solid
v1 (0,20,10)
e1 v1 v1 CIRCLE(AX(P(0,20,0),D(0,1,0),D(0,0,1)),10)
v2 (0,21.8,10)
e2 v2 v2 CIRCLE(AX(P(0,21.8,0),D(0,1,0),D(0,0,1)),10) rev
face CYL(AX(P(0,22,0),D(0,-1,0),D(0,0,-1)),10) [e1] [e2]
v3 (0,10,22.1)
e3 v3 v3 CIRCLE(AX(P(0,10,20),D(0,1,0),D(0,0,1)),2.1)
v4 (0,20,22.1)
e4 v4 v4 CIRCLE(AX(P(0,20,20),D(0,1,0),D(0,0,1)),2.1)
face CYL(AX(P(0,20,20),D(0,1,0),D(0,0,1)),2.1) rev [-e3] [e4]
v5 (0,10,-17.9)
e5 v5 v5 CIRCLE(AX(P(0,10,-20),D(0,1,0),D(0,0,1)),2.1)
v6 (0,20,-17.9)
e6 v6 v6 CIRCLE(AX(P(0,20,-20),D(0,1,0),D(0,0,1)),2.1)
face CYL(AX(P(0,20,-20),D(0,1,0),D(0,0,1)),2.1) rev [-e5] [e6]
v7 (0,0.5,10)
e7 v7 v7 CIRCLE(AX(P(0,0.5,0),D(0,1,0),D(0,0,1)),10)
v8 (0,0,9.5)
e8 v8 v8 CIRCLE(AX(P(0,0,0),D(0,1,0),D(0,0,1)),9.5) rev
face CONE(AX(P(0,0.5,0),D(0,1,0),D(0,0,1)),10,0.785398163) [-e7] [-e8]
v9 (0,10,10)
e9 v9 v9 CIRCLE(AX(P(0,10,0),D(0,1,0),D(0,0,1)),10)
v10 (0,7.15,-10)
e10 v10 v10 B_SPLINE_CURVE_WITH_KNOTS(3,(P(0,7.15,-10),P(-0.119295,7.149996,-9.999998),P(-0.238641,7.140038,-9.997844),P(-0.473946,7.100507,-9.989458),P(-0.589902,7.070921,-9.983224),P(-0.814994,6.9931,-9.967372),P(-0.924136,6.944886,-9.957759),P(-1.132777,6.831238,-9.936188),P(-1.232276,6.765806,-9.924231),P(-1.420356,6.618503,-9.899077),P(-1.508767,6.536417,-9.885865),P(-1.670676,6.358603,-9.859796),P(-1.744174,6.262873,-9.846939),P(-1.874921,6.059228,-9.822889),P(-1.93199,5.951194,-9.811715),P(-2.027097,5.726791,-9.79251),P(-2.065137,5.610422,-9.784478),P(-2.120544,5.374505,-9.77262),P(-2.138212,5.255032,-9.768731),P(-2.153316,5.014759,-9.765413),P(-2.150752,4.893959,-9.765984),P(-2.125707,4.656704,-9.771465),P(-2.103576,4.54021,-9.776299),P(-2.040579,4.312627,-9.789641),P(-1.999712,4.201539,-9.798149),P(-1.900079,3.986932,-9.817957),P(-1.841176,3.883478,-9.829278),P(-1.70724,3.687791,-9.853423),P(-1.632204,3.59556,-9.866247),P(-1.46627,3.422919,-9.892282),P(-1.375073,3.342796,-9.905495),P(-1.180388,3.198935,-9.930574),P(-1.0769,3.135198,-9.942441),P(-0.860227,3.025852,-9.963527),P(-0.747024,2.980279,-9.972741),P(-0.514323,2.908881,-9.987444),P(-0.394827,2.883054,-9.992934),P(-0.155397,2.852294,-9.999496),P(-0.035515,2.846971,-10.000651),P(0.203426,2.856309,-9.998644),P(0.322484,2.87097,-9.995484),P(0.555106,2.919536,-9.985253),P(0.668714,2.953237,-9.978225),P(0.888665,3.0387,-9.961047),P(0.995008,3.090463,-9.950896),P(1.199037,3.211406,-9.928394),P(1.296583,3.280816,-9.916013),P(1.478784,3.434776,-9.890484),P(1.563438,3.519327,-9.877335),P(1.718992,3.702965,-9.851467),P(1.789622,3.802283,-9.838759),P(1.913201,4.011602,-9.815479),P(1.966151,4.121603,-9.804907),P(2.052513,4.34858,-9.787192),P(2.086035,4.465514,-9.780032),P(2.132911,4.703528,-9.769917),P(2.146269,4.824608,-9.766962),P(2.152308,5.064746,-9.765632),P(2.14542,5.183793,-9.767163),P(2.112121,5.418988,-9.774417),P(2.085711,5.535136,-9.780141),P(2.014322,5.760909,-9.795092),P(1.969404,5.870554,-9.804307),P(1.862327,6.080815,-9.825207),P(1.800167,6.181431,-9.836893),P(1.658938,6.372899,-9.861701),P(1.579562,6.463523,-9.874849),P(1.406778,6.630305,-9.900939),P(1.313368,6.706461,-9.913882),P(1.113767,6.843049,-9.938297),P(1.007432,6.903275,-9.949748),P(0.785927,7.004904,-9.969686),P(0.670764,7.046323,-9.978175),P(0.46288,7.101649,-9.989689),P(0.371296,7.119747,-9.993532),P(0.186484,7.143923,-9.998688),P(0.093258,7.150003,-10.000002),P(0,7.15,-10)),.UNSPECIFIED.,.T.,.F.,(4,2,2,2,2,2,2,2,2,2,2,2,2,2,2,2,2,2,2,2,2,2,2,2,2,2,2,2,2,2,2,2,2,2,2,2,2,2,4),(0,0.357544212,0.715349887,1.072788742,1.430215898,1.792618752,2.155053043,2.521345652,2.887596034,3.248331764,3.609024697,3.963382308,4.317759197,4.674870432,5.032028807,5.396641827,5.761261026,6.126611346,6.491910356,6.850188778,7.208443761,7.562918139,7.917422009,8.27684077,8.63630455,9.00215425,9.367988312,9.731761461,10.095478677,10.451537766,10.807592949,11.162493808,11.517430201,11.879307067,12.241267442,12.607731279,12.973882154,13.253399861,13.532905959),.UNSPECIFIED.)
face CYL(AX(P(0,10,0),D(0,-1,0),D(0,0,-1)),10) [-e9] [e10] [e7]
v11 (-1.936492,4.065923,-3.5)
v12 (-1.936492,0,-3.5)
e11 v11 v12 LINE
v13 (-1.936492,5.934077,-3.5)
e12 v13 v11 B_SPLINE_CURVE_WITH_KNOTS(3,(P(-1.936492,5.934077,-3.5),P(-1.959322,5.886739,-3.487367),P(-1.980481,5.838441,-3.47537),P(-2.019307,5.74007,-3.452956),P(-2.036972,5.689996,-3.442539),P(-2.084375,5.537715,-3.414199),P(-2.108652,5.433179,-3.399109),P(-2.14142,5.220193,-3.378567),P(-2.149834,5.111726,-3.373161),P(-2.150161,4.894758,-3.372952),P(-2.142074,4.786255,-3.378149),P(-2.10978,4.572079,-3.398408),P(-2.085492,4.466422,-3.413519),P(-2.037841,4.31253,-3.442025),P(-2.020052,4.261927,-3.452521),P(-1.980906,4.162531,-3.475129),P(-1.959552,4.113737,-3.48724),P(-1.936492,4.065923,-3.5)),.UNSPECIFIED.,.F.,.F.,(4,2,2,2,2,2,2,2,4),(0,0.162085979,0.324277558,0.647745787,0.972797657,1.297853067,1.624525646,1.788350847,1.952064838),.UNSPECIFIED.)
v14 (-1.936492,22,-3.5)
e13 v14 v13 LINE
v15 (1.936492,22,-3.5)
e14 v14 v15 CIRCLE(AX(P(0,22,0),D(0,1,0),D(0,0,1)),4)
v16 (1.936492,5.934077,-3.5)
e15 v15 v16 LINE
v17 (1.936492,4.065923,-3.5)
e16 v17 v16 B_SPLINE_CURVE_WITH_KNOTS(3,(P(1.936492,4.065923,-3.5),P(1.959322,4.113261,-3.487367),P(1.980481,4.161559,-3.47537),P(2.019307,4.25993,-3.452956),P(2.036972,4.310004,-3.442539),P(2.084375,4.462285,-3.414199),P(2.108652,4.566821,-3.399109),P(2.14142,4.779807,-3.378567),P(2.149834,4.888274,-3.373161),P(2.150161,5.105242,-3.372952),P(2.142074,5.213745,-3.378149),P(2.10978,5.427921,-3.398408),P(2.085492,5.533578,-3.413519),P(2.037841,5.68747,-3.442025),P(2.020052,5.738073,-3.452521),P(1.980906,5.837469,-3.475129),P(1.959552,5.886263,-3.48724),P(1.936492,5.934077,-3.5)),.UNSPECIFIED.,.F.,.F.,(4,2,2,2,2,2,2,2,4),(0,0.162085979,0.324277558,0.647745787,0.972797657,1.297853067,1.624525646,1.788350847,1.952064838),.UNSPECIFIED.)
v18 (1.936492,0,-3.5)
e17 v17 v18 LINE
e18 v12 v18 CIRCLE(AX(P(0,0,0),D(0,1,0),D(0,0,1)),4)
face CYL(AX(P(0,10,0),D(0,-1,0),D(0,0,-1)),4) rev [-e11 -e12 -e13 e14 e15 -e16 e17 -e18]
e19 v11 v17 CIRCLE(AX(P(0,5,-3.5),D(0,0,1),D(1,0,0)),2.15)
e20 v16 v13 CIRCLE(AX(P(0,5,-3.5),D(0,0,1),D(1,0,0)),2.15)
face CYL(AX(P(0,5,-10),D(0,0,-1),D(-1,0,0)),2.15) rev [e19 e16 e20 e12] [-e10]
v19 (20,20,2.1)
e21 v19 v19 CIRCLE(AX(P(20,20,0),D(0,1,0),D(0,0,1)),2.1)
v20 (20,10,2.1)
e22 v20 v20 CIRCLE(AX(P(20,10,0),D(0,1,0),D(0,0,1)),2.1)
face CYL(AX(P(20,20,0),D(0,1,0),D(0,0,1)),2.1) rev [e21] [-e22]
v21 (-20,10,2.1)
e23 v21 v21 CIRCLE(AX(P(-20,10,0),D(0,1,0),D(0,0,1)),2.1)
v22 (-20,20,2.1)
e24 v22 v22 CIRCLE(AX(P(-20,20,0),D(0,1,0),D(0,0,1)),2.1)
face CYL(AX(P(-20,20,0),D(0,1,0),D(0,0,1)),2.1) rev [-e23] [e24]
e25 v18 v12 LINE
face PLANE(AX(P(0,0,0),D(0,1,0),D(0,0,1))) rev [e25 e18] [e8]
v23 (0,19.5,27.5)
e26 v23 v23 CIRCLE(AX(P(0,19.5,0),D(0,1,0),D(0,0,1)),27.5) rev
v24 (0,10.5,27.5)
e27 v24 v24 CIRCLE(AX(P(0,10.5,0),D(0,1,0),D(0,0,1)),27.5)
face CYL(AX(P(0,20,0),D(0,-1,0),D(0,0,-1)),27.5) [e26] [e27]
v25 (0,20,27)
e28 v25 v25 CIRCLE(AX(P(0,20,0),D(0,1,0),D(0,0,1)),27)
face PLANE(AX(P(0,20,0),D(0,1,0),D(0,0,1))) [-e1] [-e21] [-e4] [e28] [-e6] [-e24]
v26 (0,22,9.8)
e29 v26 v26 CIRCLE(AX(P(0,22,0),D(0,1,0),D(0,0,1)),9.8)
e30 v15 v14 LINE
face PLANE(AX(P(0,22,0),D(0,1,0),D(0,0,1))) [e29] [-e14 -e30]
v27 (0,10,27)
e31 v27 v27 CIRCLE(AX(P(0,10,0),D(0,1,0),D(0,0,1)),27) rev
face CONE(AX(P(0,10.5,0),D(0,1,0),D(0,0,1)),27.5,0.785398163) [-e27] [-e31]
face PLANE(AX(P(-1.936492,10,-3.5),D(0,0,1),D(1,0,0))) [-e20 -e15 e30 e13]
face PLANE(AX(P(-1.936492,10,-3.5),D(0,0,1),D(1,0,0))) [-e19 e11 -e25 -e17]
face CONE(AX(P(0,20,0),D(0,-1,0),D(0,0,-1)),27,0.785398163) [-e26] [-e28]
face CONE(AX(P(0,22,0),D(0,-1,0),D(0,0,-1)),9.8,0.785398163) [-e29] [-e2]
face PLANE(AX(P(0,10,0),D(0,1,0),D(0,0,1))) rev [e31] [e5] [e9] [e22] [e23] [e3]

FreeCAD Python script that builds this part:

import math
import FreeCAD as App
import Part
import Sketcher
Q = App.Units.Quantity


def edges_at(feature, points):
    """Names of the edges that pass closest to the given points."""
    edges = feature.Shape.Edges
    near = lambda p: min(range(len(edges)), key=lambda i: edges[i].distToShape(Part.Vertex(*p))[0])
    return sorted({f"Edge{near(p) + 1}" for p in points})

doc = App.newDocument("Part")
body = doc.addObject("PartDesign::Body", "Body")

sketch1 = doc.addObject("Sketcher::SketchObject", "Sketch")
body.addObject(sketch1)
sketch1.AttachmentSupport = (doc.XZ_Plane, [""])
sketch1.MapMode = "FlatFace"
sketch1.addGeometry([
    Part.Circle(App.Vector(0, 0, 0), App.Vector(0, 0, 1), 10),
    Part.ArcOfCircle(Part.Circle(App.Vector(0, 0, 0), App.Vector(0, 0, 1), 4), math.radians(-61.044976), math.radians(241.044976)),
    Part.LineSegment(App.Vector(-1.936492, -3.5, 0), App.Vector(1.936492, -3.5, 0)),
], False)
sketch1.addConstraint([
    Sketcher.Constraint("Coincident", 1, 1, 2, 2),
    Sketcher.Constraint("Coincident", 2, 1, 1, 2),
    Sketcher.Constraint("Horizontal", 2),
    Sketcher.Constraint("Coincident", 0, 3, -1, 1),
    Sketcher.Constraint("Coincident", 1, 3, -1, 1),
    Sketcher.Constraint("Diameter", 0, Q("20 mm")),
    Sketcher.Constraint("Radius", 1, Q("4 mm")),
    Sketcher.Constraint("DistanceY", 1, 1, -1, 1, Q("3.5 mm")),
])
pad1 = doc.addObject("PartDesign::Pad", "Pad")
body.addObject(pad1)
pad1.Profile = sketch1
pad1.Length = 10
pad1.Reversed = True

sketch2 = doc.addObject("Sketcher::SketchObject", "Sketch001")
body.addObject(sketch2)
sketch2.AttachmentSupport = (doc.XY_Plane, [""])
sketch2.MapMode = "FlatFace"
sketch2.AttachmentOffset = App.Placement(App.Vector(0, 0, -10), App.Rotation())
sketch2.addGeometry(Part.Circle(App.Vector(0, 5, 0), App.Vector(0, 0, 1), 2.15), False)
sketch2.addConstraint([
    Sketcher.Constraint("PointOnObject", 0, 3, -2),
    Sketcher.Constraint("Diameter", 0, Q("4.3 mm")),
    Sketcher.Constraint("DistanceY", -1, 1, 0, 3, Q("5 mm")),
])
doc.recompute()
hole = doc.addObject("PartDesign::Hole", "Hole")
body.addObject(hole)
hole.Profile = sketch2
hole.ThreadType = "None"
hole.Diameter = 4.3
hole.DepthType = "Dimension"
hole.Depth = 8
hole.DrillPoint = "Angled"
hole.DrillPointAngle = 118
hole.Reversed = True

sketch3 = doc.addObject("Sketcher::SketchObject", "Sketch002")
body.addObject(sketch3)
sketch3.AttachmentSupport = (doc.XZ_Plane, [""])
sketch3.MapMode = "FlatFace"
sketch3.AttachmentOffset = App.Placement(App.Vector(0, 0, -10), App.Rotation())
sketch3.addGeometry([
    Part.Circle(App.Vector(0, 0, 0), App.Vector(0, 0, 1), 27.5),
    Part.ArcOfCircle(Part.Circle(App.Vector(0, 0, 0), App.Vector(0, 0, 1), 4), math.radians(-61.044976), math.radians(241.044976)),
    Part.LineSegment(App.Vector(-1.936492, -3.5, 0), App.Vector(1.936492, -3.5, 0)),
], False)
sketch3.addConstraint([
    Sketcher.Constraint("Coincident", 1, 1, 2, 2),
    Sketcher.Constraint("Coincident", 2, 1, 1, 2),
    Sketcher.Constraint("Horizontal", 2),
    Sketcher.Constraint("Coincident", 0, 3, -1, 1),
    Sketcher.Constraint("Coincident", 1, 3, -1, 1),
    Sketcher.Constraint("Diameter", 0, Q("55 mm")),
    Sketcher.Constraint("Radius", 1, Q("4 mm")),
    Sketcher.Constraint("DistanceY", 1, 1, -1, 1, Q("3.5 mm")),
])
pad2 = doc.addObject("PartDesign::Pad", "Pad001")
body.addObject(pad2)
pad2.Profile = sketch3
pad2.Length = 10
pad2.Reversed = True

sketch4 = doc.addObject("Sketcher::SketchObject", "Sketch003")
body.addObject(sketch4)
sketch4.AttachmentSupport = (doc.XZ_Plane, [""])
sketch4.MapMode = "FlatFace"
sketch4.AttachmentOffset = App.Placement(App.Vector(0, 0, -20), App.Rotation())
sketch4.addGeometry([
    Part.Circle(App.Vector(0, 0, 0), App.Vector(0, 0, 1), 10),
    Part.ArcOfCircle(Part.Circle(App.Vector(0, 0, 0), App.Vector(0, 0, 1), 4), math.radians(-61.044976), math.radians(241.044976)),
    Part.LineSegment(App.Vector(-1.936492, -3.5, 0), App.Vector(1.936492, -3.5, 0)),
], False)
sketch4.addConstraint([
    Sketcher.Constraint("Coincident", 1, 1, 2, 2),
    Sketcher.Constraint("Coincident", 2, 1, 1, 2),
    Sketcher.Constraint("Horizontal", 2),
    Sketcher.Constraint("Coincident", 0, 3, -1, 1),
    Sketcher.Constraint("Coincident", 1, 3, -1, 1),
    Sketcher.Constraint("Diameter", 0, Q("20 mm")),
    Sketcher.Constraint("Radius", 1, Q("4 mm")),
    Sketcher.Constraint("DistanceY", 1, 1, -1, 1, Q("3.5 mm")),
])
pad3 = doc.addObject("PartDesign::Pad", "Pad002")
body.addObject(pad3)
pad3.Profile = sketch4
pad3.Length = 2
pad3.Reversed = True

sketch5 = doc.addObject("Sketcher::SketchObject", "Sketch004")
body.addObject(sketch5)
sketch5.AttachmentSupport = (doc.XZ_Plane, [""])
sketch5.MapMode = "FlatFace"
sketch5.AttachmentOffset = App.Placement(App.Vector(0, 0, -20), App.Rotation())
sketch5.addGeometry(Part.Circle(App.Vector(0, 20, 0), App.Vector(0, 0, 1), 2.1), False)
sketch5.addConstraint([
    Sketcher.Constraint("PointOnObject", 0, 3, -2),
    Sketcher.Constraint("Diameter", 0, Q("4.2 mm")),
    Sketcher.Constraint("DistanceY", -1, 1, 0, 3, Q("20 mm")),
])
doc.recompute()
hole2 = doc.addObject("PartDesign::Hole", "Hole001")
body.addObject(hole2)
hole2.Profile = sketch5
hole2.ThreadType = "None"
hole2.Diameter = 4.2
hole2.DepthType = "ThroughAll"
hole2.Reversed = True
doc.recompute()

polarpattern = doc.addObject("PartDesign::PolarPattern", "PolarPattern")
body.addObject(polarpattern)
polarpattern.Originals = [hole2]
polarpattern.Axis = (doc.Y_Axis, [""])
polarpattern.Angle = 360
polarpattern.Occurrences = 4
body.Tip = polarpattern
doc.recompute()

chamfer = doc.addObject("PartDesign::Chamfer", "Chamfer")
body.addObject(chamfer)
chamfer.Base = (polarpattern, edges_at(polarpattern, [(0, 0, -10), (0, 20, -27.5), (0, 10, -27.5)]))
chamfer.Size = 0.5
doc.recompute()

chamfer2 = doc.addObject("PartDesign::Chamfer", "Chamfer001")
body.addObject(chamfer2)
chamfer2.Base = (chamfer, edges_at(chamfer, [(0, 22, -10)]))
chamfer2.Size = 0.2

doc.recompute()
